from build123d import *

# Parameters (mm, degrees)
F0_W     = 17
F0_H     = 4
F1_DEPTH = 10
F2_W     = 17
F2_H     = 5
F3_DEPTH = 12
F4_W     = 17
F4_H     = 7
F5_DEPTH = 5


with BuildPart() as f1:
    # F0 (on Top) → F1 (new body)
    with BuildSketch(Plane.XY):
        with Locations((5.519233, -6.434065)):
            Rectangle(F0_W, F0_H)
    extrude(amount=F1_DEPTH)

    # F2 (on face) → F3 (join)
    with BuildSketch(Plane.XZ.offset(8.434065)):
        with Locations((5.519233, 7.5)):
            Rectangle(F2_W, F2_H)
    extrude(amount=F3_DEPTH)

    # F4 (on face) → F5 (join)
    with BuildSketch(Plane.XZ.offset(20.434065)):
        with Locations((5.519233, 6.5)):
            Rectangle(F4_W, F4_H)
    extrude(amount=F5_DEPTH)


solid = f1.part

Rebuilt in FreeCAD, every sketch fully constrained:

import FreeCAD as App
import Part
import Sketcher

V = App.Vector
Q = App.Units.Quantity


def add_polygon(sketch, points):
    """Adds a closed chain of lines whose ends are joined by coincident constraints."""
    first, n = sketch.GeometryCount, len(points)
    for a, b in zip(points, points[1:] + points[:1]):
        sketch.addGeometry(Part.LineSegment(App.Vector(*a, 0), App.Vector(*b, 0)), False)
    for i in range(n):
        sketch.addConstraint(Sketcher.Constraint("Coincident", first + i, 2, first + (i + 1) % n, 1))

doc = App.newDocument("Part")
body = doc.addObject("PartDesign::Body", "Body")

# Sketch on XY plane
sketch1 = doc.addObject("Sketcher::SketchObject", "Sketch")
body.addObject(sketch1)
sketch1.AttachmentSupport = (doc.XY_Plane, [""])
sketch1.MapMode = "FlatFace"
add_polygon(sketch1, [(-3, -4.4), (-3, -8.4), (14, -8.4), (14, -4.4)])  # lines 0-3
sketch1.addConstraint([
    Sketcher.Constraint("Vertical", 0),
    Sketcher.Constraint("Horizontal", 1),
    Sketcher.Constraint("Vertical", 2),
    Sketcher.Constraint("Horizontal", 3),
    Sketcher.Constraint("DistanceX", 1, 1, 1, 2, Q("17 mm")),
    Sketcher.Constraint("DistanceY", 0, 2, 0, 1, Q("4 mm")),
    Sketcher.Constraint("DistanceX", 0, 2, -1, 1, Q("2.980767 mm")),
    Sketcher.Constraint("DistanceY", 0, 2, -1, 1, Q("8.434065 mm")),
])
pad1 = doc.addObject("PartDesign::Pad", "Pad")
body.addObject(pad1)
pad1.Profile = sketch1
pad1.Length = 10

# Sketch on XZ plane
sketch2 = doc.addObject("Sketcher::SketchObject", "Sketch001")
body.addObject(sketch2)
sketch2.AttachmentSupport = (doc.XZ_Plane, [""])
sketch2.MapMode = "FlatFace"
sketch2.AttachmentOffset = App.Placement(V(0, 0, 8.434065), App.Rotation())
add_polygon(sketch2, [(-3, 10), (-3, 5), (14, 5), (14, 10)])  # lines 0-3
sketch2.addConstraint([
    Sketcher.Constraint("Vertical", 0),
    Sketcher.Constraint("Horizontal", 1),
    Sketcher.Constraint("Vertical", 2),
    Sketcher.Constraint("Horizontal", 3),
    Sketcher.Constraint("DistanceX", 1, 1, 1, 2, Q("17 mm")),
    Sketcher.Constraint("DistanceY", 0, 2, 0, 1, Q("5 mm")),
    Sketcher.Constraint("DistanceY", -1, 1, 0, 2, Q("5 mm")),
    Sketcher.Constraint("DistanceX", 0, 2, -1, 1, Q("2.980767 mm")),
])
pad2 = doc.addObject("PartDesign::Pad", "Pad001")
body.addObject(pad2)
pad2.Profile = sketch2
pad2.Length = 12

# Sketch on XZ plane
sketch3 = doc.addObject("Sketcher::SketchObject", "Sketch002")
body.addObject(sketch3)
sketch3.AttachmentSupport = (doc.XZ_Plane, [""])
sketch3.MapMode = "FlatFace"
sketch3.AttachmentOffset = App.Placement(V(0, 0, 20.434065), App.Rotation())
add_polygon(sketch3, [(-3, 10), (-3, 3), (14, 3), (14, 10)])  # lines 0-3
sketch3.addConstraint([
    Sketcher.Constraint("Vertical", 0),
    Sketcher.Constraint("Horizontal", 1),
    Sketcher.Constraint("Vertical", 2),
    Sketcher.Constraint("Horizontal", 3),
    Sketcher.Constraint("DistanceX", 1, 1, 1, 2, Q("17 mm")),
    Sketcher.Constraint("DistanceY", 0, 2, 0, 1, Q("7 mm")),
    Sketcher.Constraint("DistanceY", -1, 1, 0, 2, Q("3 mm")),
    Sketcher.Constraint("DistanceX", 0, 2, -1, 1, Q("2.980767 mm")),
])
pad3 = doc.addObject("PartDesign::Pad", "Pad002")
body.addObject(pad3)
pad3.Profile = sketch3
pad3.Length = 5

doc.recompute()
